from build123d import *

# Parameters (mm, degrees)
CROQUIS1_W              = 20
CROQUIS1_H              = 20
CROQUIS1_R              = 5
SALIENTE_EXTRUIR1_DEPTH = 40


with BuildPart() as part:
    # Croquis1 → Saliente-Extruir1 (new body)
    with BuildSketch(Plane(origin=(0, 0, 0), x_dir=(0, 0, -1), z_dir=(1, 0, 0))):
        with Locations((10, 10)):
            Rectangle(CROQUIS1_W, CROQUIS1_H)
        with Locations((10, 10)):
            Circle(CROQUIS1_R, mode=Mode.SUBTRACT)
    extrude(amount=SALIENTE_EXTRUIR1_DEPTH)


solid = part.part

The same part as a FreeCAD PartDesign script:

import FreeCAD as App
import Part
import Sketcher

V = App.Vector
Q = App.Units.Quantity

doc = App.newDocument("Part")
body = doc.addObject("PartDesign::Body", "Body")

# Sketch on YZ plane
sketch1 = body.newObject("Sketcher::SketchObject", "Sketch")
sketch1.AttachmentSupport = (doc.getObject("YZ_Plane"), [""])
sketch1.MapMode = "FlatFace"
sketch1.addGeometry([
    Part.LineSegment(V(20, 0, 0), V(0, 0, 0)),  # 0
    Part.LineSegment(V(0, 0, 0), V(0, -20, 0)),  # 1
    Part.LineSegment(V(0, -20, 0), V(20, -20, 0)),  # 2
    Part.LineSegment(V(20, -20, 0), V(20, 0, 0)),  # 3
    Part.Circle(V(10, -10, 0), V(0, 0, 1), 5),  # 4
], False)
sketch1.addConstraint([
    Sketcher.Constraint("Coincident", 0, 2, 1, 1),
    Sketcher.Constraint("Coincident", 1, 2, 2, 1),
    Sketcher.Constraint("Coincident", 2, 2, 3, 1),
    Sketcher.Constraint("Coincident", 3, 2, 0, 1),
    Sketcher.Constraint("Horizontal", 0),
    Sketcher.Constraint("Vertical", 1),
    Sketcher.Constraint("Horizontal", 2),
    Sketcher.Constraint("Vertical", 3),
    Sketcher.Constraint("Coincident", 0, 2, -1, 1),
    Sketcher.Constraint("Equal", 2, 1),
    Sketcher.Constraint("Diameter", 4, Q("10 mm")),
    Sketcher.Constraint("DistanceX", 0, 2, 0, 1, Q("20 mm")),
    Sketcher.Constraint("DistanceX", -1, 1, 4, 3, Q("10 mm")),
    Sketcher.Constraint("DistanceY", 4, 3, -1, 1, Q("10 mm")),
])
pad1 = body.newObject("PartDesign::Pad", "Pad")
pad1.Profile = sketch1
pad1.Length = 40

doc.recompute()
